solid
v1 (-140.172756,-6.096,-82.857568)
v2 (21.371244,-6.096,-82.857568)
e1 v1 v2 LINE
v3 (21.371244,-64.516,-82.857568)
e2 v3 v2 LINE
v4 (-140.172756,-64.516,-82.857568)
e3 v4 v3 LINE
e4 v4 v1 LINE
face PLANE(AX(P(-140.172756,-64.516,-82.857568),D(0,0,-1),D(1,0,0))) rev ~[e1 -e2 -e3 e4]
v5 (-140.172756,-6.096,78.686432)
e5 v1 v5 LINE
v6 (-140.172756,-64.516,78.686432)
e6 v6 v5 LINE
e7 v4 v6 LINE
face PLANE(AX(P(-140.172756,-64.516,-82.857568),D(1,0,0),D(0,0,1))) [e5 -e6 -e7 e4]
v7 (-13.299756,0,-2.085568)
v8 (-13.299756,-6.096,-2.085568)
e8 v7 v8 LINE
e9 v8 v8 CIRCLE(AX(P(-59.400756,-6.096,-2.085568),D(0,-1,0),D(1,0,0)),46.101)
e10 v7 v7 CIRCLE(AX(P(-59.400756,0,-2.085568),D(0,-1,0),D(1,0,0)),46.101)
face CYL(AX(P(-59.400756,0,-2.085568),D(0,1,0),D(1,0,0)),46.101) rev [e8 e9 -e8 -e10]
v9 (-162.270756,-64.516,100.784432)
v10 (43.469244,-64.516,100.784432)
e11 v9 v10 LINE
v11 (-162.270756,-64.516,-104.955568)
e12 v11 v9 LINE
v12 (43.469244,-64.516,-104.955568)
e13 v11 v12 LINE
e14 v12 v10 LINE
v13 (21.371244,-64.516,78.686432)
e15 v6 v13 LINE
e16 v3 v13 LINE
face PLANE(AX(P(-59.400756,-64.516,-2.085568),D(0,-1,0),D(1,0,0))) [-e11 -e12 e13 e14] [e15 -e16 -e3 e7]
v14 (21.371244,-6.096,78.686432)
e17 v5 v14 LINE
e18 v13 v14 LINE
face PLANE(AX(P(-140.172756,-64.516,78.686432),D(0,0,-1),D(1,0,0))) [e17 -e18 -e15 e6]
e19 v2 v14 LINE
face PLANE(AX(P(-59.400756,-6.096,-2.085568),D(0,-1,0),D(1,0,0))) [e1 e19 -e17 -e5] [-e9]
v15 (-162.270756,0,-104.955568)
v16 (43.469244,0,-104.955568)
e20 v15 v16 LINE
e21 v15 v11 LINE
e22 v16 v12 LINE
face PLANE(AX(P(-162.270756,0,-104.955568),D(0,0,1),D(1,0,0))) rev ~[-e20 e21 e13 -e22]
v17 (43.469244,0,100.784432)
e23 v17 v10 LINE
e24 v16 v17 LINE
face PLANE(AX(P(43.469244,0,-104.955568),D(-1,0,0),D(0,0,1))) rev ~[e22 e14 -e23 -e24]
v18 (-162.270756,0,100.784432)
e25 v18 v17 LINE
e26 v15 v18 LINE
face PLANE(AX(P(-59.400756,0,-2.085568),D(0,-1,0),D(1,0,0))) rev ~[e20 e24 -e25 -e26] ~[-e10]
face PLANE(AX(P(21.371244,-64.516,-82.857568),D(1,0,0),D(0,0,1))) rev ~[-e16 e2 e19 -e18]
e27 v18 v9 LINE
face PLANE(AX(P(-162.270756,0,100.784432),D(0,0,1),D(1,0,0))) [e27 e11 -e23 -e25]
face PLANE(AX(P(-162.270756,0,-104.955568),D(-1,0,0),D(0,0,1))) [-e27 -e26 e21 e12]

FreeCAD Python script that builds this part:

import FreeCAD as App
import Part
import Sketcher

V = App.Vector
Q = App.Units.Quantity


def add_polygon(sketch, points):
    """Adds a closed chain of lines whose ends are joined by coincident constraints."""
    first, n = sketch.GeometryCount, len(points)
    for a, b in zip(points, points[1:] + points[:1]):
        sketch.addGeometry(Part.LineSegment(App.Vector(*a, 0), App.Vector(*b, 0)), False)
    for i in range(n):
        sketch.addConstraint(Sketcher.Constraint("Coincident", first + i, 2, first + (i + 1) % n, 1))

doc = App.newDocument("Part")
body = doc.addObject("PartDesign::Body", "Body")

# Sketch on XZ plane
sketch1 = doc.addObject("Sketcher::SketchObject", "Sketch")
body.addObject(sketch1)
sketch1.AttachmentSupport = (doc.XZ_Plane, [""])
sketch1.MapMode = "FlatFace"
add_polygon(sketch1, [(-162.270756, 100.784432), (-162.270756, -104.955568), (43.469244, -104.955568), (43.469244, 100.784432)])  # lines 0-3
sketch1.addGeometry(Part.Circle(V(-59.400756, -2.085568, 0), V(0, 0, 1), 46.101), False)  # 4
sketch1.addConstraint([
    Sketcher.Constraint("Vertical", 0),
    Sketcher.Constraint("Horizontal", 1),
    Sketcher.Constraint("Vertical", 2),
    Sketcher.Constraint("Horizontal", 3),
    Sketcher.Constraint("Equal", 3, 0),
    Sketcher.Constraint("Diameter", 4, Q("3.63 in")),
    Sketcher.Constraint("DistanceX", 1, 1, 1, 2, Q("8.1 in")),
    Sketcher.Constraint("DistanceX", 0, 2, 4, 3, Q("4.05 in")),
    Sketcher.Constraint("DistanceY", 0, 2, 4, 3, Q("4.05 in")),
    Sketcher.Constraint("DistanceY", 0, 2, -1, 1, 104.955568),
    Sketcher.Constraint("DistanceX", 4, 3, -1, 1, 59.400756),
])
pad1 = doc.addObject("PartDesign::Pad", "Pad")
body.addObject(pad1)
pad1.Profile = sketch1
pad1.Length = Q("2.54 in")

# Sketch on XZ plane
sketch2 = doc.addObject("Sketcher::SketchObject", "Sketch001")
body.addObject(sketch2)
sketch2.AttachmentSupport = (doc.XZ_Plane, [""])
sketch2.MapMode = "FlatFace"
sketch2.AttachmentOffset = App.Placement(V(0, 0, 2.54 * 25.4), App.Rotation())
add_polygon(sketch2, [(-140.172756, 78.686432), (-140.172756, -82.857568), (21.371244, -82.857568), (21.371244, 78.686432)])  # lines 0-3
sketch2.addGeometry(Part.Circle(V(-59.400756, -2.085568, 0), V(0, 0, 1), 46.101), False)  # 4
sketch2.addConstraint([
    Sketcher.Constraint("Vertical", 0),
    Sketcher.Constraint("Horizontal", 1),
    Sketcher.Constraint("Vertical", 2),
    Sketcher.Constraint("Horizontal", 3),
    Sketcher.Constraint("Equal", 3, 0),
    Sketcher.Constraint("Diameter", 4, Q("3.63 in")),
    Sketcher.Constraint("DistanceX", 1, 1, 1, 2, Q("6.36 in")),
    Sketcher.Constraint("DistanceX", 0, 2, 4, 3, Q("3.18 in")),
    Sketcher.Constraint("DistanceY", 0, 2, 4, 3, Q("3.18 in")),
    Sketcher.Constraint("DistanceY", 0, 2, -1, 1, 82.857568),
    Sketcher.Constraint("DistanceX", 4, 3, -1, 1, 59.400756),
])
pocket1 = doc.addObject("PartDesign::Pocket", "Pocket")
body.addObject(pocket1)
pocket1.Profile = sketch2
pocket1.Length = Q("2.3 in")

doc.recompute()
